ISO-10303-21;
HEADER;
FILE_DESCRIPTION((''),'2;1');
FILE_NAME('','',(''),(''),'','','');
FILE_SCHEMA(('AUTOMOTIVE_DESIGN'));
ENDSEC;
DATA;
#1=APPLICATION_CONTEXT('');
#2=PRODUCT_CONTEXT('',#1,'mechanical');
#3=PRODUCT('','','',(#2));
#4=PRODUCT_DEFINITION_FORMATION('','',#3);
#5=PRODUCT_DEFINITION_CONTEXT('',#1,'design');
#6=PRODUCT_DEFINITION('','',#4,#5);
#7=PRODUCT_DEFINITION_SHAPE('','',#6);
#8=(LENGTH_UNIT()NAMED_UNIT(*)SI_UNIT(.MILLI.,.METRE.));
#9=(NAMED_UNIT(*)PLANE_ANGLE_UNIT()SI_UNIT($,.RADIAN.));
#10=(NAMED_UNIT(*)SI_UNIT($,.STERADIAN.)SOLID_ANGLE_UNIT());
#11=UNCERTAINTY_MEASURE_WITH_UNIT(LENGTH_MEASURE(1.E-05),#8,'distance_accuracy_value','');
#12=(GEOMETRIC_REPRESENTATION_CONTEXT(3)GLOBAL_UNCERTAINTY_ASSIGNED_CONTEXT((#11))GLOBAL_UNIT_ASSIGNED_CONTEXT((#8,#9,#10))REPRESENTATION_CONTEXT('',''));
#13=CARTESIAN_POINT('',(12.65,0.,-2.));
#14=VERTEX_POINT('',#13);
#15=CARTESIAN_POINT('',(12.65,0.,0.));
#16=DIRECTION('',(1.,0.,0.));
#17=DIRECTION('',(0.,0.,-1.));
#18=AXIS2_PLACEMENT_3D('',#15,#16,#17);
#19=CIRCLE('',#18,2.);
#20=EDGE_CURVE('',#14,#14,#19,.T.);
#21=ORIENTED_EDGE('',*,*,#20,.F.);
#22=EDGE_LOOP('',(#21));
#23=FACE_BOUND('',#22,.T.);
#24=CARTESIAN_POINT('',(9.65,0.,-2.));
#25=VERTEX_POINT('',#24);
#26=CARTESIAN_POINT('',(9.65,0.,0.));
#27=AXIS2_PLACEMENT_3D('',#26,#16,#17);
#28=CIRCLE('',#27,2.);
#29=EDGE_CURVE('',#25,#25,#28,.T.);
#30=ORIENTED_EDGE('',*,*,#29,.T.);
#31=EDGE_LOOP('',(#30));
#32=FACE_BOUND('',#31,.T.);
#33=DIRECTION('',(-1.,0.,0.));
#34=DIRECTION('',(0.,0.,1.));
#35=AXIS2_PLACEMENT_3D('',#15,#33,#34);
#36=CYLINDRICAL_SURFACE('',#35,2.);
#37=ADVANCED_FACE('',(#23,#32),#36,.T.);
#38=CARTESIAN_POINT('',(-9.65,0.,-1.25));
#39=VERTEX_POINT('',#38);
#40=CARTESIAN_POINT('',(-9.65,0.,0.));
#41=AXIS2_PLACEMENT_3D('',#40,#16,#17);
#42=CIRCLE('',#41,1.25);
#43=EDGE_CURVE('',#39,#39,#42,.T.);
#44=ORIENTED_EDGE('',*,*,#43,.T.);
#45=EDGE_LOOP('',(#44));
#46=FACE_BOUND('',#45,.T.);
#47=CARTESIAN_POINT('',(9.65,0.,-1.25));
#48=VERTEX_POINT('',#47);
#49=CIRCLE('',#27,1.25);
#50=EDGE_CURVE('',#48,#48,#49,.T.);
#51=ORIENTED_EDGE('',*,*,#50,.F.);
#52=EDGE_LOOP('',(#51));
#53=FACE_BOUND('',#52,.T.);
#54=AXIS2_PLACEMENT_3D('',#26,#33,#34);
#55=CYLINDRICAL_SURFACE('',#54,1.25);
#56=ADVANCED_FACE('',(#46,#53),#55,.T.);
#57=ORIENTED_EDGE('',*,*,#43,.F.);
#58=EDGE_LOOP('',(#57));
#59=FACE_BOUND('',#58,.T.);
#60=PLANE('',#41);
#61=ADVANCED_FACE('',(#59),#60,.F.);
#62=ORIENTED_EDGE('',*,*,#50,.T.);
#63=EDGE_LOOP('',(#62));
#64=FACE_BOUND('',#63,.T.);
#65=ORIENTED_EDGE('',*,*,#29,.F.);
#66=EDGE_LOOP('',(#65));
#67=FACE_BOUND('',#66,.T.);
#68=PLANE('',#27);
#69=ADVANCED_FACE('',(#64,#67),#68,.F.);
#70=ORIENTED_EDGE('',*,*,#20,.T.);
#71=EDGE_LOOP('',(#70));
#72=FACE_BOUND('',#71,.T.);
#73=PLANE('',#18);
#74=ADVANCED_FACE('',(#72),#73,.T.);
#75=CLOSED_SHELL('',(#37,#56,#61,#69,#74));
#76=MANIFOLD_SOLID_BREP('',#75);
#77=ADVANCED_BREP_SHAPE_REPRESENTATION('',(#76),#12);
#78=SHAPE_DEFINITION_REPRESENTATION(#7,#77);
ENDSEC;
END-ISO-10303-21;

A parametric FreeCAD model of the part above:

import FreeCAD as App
import Part
import Sketcher
Q = App.Units.Quantity

doc = App.newDocument("Part")
body = doc.addObject("PartDesign::Body", "Body")

# Sketch on YZ plane
sketch1 = body.newObject("Sketcher::SketchObject", "Sketch")
sketch1.AttachmentSupport = (doc.getObject("YZ_Plane"), [""])
sketch1.MapMode = "FlatFace"
sketch1.addGeometry(Part.Circle(App.Vector(0, 0, 0), App.Vector(0, 0, 1), 1.2), False)
sketch1.addConstraint([
    Sketcher.Constraint("Coincident", 0, 3, -1, 1),
    Sketcher.Constraint("Diameter", 0, Q("2.5 mm")),
])
pad1 = body.newObject("PartDesign::Pad", "Pad")
pad1.Profile = sketch1
pad1.Length = 19.3
pad1.Midplane = True

# Sketch on YZ plane
sketch2 = body.newObject("Sketcher::SketchObject", "Sketch001")
sketch2.AttachmentSupport = (doc.getObject("YZ_Plane"), [""])
sketch2.MapMode = "FlatFace"
sketch2.AttachmentOffset = App.Placement(App.Vector(0, 0, 9.65), App.Rotation())
sketch2.addGeometry(Part.Circle(App.Vector(0, 0, 0), App.Vector(0, 0, 1), 2), False)
sketch2.addConstraint([
    Sketcher.Constraint("Coincident", 0, 3, -1, 1),
    Sketcher.Constraint("Diameter", 0, Q("4 mm")),
])
pad2 = body.newObject("PartDesign::Pad", "Pad001")
pad2.Profile = sketch2
pad2.Length = 3

doc.recompute()
